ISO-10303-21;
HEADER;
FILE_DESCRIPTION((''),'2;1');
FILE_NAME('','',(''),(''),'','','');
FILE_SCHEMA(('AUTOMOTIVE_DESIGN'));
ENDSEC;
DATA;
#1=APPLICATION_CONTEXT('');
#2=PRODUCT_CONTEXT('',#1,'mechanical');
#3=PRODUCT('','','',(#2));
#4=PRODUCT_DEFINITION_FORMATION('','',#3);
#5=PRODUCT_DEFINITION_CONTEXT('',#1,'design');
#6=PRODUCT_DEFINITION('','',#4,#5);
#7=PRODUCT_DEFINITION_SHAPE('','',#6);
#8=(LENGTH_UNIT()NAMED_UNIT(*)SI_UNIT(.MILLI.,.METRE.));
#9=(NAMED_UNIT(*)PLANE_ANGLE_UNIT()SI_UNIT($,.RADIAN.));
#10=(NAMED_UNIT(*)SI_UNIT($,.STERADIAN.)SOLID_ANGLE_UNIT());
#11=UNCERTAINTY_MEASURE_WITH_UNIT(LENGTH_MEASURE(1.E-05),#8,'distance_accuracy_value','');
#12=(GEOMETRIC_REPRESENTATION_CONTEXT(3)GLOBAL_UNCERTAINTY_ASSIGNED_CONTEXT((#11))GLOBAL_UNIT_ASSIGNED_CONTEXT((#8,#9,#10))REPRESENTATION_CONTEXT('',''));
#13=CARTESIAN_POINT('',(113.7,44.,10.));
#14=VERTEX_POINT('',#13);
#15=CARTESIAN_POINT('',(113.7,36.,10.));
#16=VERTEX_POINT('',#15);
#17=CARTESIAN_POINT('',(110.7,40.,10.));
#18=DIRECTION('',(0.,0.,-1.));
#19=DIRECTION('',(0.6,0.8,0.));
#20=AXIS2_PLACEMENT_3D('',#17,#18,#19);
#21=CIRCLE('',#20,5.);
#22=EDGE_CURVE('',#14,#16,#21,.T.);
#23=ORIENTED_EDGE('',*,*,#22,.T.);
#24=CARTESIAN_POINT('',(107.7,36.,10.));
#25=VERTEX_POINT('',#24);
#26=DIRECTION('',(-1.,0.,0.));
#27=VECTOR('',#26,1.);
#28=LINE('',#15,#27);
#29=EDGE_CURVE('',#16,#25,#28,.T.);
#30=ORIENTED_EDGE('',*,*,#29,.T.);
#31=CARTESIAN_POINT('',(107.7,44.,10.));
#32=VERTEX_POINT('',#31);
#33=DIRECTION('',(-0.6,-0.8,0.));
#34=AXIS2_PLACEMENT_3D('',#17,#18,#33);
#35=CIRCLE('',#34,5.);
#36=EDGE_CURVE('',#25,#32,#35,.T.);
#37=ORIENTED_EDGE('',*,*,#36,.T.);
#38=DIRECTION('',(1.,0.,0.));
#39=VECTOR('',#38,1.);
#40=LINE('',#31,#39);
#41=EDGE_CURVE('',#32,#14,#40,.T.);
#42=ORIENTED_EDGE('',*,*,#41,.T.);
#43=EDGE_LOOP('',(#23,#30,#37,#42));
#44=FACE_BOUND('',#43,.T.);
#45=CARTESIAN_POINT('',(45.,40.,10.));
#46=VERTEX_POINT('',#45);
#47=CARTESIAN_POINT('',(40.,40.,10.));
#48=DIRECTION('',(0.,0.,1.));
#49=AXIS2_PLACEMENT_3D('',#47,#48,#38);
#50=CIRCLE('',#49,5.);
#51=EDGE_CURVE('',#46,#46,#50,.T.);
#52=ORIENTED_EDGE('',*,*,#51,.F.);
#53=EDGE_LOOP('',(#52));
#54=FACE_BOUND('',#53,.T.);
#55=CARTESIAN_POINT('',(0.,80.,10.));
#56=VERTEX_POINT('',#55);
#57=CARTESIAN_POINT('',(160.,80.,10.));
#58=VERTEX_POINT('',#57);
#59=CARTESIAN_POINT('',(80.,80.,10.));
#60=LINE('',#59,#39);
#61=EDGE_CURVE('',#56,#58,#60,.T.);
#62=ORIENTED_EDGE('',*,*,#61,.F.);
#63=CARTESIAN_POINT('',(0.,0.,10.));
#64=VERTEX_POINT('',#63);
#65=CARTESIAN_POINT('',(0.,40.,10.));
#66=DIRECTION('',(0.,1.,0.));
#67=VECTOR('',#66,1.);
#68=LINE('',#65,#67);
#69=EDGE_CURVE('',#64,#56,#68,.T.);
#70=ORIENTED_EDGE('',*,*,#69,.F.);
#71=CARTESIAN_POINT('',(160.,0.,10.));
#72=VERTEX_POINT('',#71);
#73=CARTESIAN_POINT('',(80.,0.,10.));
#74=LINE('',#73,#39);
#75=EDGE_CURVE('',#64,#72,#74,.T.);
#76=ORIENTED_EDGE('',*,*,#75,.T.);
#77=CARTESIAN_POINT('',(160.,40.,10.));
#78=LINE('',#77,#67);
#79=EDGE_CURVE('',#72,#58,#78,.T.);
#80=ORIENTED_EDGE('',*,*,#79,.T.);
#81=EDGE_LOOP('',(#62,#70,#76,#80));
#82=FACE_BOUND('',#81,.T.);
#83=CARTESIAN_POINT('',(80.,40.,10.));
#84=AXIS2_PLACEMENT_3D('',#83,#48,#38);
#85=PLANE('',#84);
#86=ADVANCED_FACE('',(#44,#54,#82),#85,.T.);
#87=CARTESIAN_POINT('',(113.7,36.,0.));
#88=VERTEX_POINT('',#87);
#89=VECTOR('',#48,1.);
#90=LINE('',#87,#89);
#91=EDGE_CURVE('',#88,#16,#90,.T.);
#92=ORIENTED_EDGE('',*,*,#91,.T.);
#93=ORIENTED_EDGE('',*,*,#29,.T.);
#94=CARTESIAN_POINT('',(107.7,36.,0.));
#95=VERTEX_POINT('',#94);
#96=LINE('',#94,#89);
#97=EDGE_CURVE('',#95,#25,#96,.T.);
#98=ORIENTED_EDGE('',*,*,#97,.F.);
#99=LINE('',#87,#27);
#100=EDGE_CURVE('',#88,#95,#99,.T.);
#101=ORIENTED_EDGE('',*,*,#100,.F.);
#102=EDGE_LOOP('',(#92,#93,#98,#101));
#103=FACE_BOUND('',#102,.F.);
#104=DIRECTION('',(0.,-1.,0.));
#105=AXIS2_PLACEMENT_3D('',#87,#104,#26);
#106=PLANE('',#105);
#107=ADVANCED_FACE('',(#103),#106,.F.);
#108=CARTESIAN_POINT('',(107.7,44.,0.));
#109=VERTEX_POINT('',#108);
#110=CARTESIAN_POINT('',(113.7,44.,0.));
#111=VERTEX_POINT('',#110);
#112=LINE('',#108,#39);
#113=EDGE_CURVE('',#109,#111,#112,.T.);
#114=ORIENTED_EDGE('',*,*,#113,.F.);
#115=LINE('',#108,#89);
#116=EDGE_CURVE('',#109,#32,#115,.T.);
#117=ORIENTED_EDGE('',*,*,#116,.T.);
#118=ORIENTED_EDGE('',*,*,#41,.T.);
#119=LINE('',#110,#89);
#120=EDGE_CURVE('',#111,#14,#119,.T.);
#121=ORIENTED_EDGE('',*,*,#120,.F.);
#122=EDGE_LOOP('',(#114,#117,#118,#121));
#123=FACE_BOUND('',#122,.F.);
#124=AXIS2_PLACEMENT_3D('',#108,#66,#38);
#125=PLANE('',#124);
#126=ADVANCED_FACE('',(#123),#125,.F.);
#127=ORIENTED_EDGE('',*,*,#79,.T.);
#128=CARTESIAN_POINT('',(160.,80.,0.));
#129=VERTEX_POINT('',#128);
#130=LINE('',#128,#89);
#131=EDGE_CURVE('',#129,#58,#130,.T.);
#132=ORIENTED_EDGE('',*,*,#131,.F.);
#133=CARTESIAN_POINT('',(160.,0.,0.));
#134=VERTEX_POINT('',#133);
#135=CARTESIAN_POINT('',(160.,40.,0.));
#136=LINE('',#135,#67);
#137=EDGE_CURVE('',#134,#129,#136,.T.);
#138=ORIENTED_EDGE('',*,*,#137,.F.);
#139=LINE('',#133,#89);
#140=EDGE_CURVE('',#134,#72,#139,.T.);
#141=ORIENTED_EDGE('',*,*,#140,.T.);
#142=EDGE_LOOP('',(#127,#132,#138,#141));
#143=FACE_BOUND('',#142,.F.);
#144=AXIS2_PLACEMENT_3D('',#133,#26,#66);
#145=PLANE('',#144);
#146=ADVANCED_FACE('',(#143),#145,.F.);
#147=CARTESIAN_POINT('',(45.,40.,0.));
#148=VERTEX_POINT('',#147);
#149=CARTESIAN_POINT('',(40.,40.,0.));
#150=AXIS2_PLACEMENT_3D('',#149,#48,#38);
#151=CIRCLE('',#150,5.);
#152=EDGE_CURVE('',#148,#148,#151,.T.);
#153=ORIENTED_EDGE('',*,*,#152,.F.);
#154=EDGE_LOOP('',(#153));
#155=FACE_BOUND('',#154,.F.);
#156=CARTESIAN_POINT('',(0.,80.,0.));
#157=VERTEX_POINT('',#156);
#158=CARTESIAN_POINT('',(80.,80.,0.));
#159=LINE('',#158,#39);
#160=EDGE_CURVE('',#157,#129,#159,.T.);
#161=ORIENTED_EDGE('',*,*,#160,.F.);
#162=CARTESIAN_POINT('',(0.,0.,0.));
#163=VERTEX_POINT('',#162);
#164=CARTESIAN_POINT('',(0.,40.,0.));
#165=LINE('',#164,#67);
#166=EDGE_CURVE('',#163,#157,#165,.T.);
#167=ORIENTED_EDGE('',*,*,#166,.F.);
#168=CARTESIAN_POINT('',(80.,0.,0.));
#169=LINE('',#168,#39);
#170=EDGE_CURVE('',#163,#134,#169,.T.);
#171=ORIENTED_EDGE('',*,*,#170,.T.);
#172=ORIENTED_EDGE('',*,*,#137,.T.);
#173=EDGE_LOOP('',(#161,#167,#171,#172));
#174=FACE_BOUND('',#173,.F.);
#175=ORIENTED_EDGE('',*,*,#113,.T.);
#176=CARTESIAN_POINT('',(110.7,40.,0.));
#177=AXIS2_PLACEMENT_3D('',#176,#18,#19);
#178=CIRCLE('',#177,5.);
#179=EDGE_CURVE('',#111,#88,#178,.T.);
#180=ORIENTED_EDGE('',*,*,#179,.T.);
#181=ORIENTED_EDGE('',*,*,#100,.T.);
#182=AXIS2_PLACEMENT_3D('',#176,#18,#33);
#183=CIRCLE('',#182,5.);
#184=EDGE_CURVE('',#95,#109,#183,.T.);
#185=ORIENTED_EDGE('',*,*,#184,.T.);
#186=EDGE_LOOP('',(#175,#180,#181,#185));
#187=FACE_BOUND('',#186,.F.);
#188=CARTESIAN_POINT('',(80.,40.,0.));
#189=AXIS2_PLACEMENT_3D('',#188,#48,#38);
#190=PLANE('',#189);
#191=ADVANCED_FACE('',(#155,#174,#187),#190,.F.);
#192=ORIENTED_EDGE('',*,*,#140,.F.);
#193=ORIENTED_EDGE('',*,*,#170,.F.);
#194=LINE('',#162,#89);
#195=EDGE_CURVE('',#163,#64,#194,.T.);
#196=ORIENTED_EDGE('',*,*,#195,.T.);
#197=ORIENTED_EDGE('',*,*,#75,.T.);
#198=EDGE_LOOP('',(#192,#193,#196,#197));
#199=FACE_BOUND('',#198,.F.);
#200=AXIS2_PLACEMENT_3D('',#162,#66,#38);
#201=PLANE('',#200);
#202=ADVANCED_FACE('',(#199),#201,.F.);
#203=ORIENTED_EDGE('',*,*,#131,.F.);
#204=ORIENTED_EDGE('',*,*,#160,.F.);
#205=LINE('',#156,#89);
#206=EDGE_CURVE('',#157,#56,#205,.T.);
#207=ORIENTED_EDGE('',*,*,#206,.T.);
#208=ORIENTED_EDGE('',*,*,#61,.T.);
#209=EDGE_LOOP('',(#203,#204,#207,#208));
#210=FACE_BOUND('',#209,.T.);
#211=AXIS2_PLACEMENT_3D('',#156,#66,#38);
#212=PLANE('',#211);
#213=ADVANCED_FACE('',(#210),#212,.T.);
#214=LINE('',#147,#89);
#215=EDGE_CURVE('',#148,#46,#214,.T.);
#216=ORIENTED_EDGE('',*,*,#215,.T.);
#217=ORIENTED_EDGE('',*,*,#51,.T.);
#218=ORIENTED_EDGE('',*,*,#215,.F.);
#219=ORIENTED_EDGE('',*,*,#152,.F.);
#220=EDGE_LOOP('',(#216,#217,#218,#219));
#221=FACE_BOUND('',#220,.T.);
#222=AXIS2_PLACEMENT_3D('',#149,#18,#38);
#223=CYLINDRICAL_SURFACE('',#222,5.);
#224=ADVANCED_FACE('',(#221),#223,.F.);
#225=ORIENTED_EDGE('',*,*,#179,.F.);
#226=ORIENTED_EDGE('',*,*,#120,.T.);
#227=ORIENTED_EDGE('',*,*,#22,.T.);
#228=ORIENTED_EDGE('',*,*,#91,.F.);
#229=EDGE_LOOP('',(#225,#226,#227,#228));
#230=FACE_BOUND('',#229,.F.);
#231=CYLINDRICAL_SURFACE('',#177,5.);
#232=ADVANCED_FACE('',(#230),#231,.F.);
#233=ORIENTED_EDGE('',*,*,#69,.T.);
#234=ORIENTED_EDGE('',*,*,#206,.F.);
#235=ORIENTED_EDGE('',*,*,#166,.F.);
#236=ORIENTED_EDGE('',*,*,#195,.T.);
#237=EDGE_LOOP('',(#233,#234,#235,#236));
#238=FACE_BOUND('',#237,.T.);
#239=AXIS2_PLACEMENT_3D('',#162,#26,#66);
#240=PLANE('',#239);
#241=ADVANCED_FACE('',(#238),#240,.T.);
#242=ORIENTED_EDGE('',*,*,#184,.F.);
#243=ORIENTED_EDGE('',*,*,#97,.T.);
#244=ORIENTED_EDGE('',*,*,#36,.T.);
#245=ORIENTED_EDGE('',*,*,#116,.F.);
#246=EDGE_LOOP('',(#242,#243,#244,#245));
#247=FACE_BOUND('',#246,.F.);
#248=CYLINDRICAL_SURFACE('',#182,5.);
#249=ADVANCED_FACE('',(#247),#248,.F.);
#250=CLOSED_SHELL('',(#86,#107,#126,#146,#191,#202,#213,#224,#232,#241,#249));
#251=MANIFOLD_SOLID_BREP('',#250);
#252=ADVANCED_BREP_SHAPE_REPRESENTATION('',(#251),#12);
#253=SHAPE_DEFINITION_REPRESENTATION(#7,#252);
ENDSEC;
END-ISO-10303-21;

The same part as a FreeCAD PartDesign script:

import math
import FreeCAD as App
import Part
import Sketcher
from FreeCAD import Vector

doc = App.newDocument("Part")
body = doc.addObject("PartDesign::Body", "Body")

# Sketch on XY plane
sketch1 = body.newObject("Sketcher::SketchObject", "Sketch")
sketch1.AttachmentSupport = (doc.getObject("XY_Plane"), [""])
sketch1.MapMode = "FlatFace"
sketch1.addGeometry([
    Part.LineSegment(Vector(0, 80, 0), Vector(0, 0, 0)),  # 0
    Part.LineSegment(Vector(0, 0, 0), Vector(160, 0, 0)),  # 1
    Part.LineSegment(Vector(160, 0, 0), Vector(160, 80, 0)),  # 2
    Part.LineSegment(Vector(160, 80, 0), Vector(0, 80, 0)),  # 3
    Part.Circle(Vector(40, 40, 0), Vector(0, 0, 1), 5),  # 4
    Part.LineSegment(Vector(108, 44, 0), Vector(114, 44, 0)),  # 5
    Part.ArcOfCircle(Part.Circle(Vector(111, 40, 0), Vector(0, 0, 1), 5), math.radians(-53), math.radians(53)),  # 6
    Part.LineSegment(Vector(114, 36, 0), Vector(108, 36, 0)),  # 7
    Part.ArcOfCircle(Part.Circle(Vector(111, 40, 0), Vector(0, 0, 1), 5), math.radians(127), math.radians(233)),  # 8
], False)
sketch1.addConstraint([
    Sketcher.Constraint("Coincident", 0, 2, 1, 1),
    Sketcher.Constraint("Coincident", 1, 2, 2, 1),
    Sketcher.Constraint("Coincident", 2, 2, 3, 1),
    Sketcher.Constraint("Coincident", 3, 2, 0, 1),
    Sketcher.Constraint("Coincident", 5, 2, 6, 2),
    Sketcher.Constraint("Coincident", 6, 1, 7, 1),
    Sketcher.Constraint("Coincident", 7, 2, 8, 2),
    Sketcher.Constraint("Coincident", 8, 1, 5, 1),
    Sketcher.Constraint("Vertical", 0),
    Sketcher.Constraint("Horizontal", 1),
    Sketcher.Constraint("Vertical", 2),
    Sketcher.Constraint("Horizontal", 3),
    Sketcher.Constraint("Horizontal", 5),
    Sketcher.Constraint("Horizontal", 7),
    Sketcher.Constraint("Coincident", 0, 2, -1, 1),
    Sketcher.Constraint("Coincident", 8, 3, 6, 3),
    Sketcher.Constraint("Equal", 4, 6),
    Sketcher.Constraint("Equal", 6, 8),
    Sketcher.Constraint("Horizontal", 4, 3, 6, 3),
    Sketcher.Constraint("Vertical", 5, 2, 6, 1),
    Sketcher.Constraint("Diameter", 4, 10.0),
    Sketcher.Constraint("DistanceX", 1, 1, 1, 2, 160.0),
    Sketcher.Constraint("DistanceX", 5, 1, 5, 2, 6.0),
    Sketcher.Constraint("DistanceY", 0, 2, 0, 1, 80.0),
    Sketcher.Constraint("DistanceX", -1, 1, 4, 3, 40.0),
    Sketcher.Constraint("DistanceY", -1, 1, 4, 3, 40.0),
    Sketcher.Constraint("DistanceX", -1, 1, 6, 3, 110.7),
])
pad1 = body.newObject("PartDesign::Pad", "Pad")
pad1.Profile = sketch1
pad1.Length = 10

doc.recompute()
